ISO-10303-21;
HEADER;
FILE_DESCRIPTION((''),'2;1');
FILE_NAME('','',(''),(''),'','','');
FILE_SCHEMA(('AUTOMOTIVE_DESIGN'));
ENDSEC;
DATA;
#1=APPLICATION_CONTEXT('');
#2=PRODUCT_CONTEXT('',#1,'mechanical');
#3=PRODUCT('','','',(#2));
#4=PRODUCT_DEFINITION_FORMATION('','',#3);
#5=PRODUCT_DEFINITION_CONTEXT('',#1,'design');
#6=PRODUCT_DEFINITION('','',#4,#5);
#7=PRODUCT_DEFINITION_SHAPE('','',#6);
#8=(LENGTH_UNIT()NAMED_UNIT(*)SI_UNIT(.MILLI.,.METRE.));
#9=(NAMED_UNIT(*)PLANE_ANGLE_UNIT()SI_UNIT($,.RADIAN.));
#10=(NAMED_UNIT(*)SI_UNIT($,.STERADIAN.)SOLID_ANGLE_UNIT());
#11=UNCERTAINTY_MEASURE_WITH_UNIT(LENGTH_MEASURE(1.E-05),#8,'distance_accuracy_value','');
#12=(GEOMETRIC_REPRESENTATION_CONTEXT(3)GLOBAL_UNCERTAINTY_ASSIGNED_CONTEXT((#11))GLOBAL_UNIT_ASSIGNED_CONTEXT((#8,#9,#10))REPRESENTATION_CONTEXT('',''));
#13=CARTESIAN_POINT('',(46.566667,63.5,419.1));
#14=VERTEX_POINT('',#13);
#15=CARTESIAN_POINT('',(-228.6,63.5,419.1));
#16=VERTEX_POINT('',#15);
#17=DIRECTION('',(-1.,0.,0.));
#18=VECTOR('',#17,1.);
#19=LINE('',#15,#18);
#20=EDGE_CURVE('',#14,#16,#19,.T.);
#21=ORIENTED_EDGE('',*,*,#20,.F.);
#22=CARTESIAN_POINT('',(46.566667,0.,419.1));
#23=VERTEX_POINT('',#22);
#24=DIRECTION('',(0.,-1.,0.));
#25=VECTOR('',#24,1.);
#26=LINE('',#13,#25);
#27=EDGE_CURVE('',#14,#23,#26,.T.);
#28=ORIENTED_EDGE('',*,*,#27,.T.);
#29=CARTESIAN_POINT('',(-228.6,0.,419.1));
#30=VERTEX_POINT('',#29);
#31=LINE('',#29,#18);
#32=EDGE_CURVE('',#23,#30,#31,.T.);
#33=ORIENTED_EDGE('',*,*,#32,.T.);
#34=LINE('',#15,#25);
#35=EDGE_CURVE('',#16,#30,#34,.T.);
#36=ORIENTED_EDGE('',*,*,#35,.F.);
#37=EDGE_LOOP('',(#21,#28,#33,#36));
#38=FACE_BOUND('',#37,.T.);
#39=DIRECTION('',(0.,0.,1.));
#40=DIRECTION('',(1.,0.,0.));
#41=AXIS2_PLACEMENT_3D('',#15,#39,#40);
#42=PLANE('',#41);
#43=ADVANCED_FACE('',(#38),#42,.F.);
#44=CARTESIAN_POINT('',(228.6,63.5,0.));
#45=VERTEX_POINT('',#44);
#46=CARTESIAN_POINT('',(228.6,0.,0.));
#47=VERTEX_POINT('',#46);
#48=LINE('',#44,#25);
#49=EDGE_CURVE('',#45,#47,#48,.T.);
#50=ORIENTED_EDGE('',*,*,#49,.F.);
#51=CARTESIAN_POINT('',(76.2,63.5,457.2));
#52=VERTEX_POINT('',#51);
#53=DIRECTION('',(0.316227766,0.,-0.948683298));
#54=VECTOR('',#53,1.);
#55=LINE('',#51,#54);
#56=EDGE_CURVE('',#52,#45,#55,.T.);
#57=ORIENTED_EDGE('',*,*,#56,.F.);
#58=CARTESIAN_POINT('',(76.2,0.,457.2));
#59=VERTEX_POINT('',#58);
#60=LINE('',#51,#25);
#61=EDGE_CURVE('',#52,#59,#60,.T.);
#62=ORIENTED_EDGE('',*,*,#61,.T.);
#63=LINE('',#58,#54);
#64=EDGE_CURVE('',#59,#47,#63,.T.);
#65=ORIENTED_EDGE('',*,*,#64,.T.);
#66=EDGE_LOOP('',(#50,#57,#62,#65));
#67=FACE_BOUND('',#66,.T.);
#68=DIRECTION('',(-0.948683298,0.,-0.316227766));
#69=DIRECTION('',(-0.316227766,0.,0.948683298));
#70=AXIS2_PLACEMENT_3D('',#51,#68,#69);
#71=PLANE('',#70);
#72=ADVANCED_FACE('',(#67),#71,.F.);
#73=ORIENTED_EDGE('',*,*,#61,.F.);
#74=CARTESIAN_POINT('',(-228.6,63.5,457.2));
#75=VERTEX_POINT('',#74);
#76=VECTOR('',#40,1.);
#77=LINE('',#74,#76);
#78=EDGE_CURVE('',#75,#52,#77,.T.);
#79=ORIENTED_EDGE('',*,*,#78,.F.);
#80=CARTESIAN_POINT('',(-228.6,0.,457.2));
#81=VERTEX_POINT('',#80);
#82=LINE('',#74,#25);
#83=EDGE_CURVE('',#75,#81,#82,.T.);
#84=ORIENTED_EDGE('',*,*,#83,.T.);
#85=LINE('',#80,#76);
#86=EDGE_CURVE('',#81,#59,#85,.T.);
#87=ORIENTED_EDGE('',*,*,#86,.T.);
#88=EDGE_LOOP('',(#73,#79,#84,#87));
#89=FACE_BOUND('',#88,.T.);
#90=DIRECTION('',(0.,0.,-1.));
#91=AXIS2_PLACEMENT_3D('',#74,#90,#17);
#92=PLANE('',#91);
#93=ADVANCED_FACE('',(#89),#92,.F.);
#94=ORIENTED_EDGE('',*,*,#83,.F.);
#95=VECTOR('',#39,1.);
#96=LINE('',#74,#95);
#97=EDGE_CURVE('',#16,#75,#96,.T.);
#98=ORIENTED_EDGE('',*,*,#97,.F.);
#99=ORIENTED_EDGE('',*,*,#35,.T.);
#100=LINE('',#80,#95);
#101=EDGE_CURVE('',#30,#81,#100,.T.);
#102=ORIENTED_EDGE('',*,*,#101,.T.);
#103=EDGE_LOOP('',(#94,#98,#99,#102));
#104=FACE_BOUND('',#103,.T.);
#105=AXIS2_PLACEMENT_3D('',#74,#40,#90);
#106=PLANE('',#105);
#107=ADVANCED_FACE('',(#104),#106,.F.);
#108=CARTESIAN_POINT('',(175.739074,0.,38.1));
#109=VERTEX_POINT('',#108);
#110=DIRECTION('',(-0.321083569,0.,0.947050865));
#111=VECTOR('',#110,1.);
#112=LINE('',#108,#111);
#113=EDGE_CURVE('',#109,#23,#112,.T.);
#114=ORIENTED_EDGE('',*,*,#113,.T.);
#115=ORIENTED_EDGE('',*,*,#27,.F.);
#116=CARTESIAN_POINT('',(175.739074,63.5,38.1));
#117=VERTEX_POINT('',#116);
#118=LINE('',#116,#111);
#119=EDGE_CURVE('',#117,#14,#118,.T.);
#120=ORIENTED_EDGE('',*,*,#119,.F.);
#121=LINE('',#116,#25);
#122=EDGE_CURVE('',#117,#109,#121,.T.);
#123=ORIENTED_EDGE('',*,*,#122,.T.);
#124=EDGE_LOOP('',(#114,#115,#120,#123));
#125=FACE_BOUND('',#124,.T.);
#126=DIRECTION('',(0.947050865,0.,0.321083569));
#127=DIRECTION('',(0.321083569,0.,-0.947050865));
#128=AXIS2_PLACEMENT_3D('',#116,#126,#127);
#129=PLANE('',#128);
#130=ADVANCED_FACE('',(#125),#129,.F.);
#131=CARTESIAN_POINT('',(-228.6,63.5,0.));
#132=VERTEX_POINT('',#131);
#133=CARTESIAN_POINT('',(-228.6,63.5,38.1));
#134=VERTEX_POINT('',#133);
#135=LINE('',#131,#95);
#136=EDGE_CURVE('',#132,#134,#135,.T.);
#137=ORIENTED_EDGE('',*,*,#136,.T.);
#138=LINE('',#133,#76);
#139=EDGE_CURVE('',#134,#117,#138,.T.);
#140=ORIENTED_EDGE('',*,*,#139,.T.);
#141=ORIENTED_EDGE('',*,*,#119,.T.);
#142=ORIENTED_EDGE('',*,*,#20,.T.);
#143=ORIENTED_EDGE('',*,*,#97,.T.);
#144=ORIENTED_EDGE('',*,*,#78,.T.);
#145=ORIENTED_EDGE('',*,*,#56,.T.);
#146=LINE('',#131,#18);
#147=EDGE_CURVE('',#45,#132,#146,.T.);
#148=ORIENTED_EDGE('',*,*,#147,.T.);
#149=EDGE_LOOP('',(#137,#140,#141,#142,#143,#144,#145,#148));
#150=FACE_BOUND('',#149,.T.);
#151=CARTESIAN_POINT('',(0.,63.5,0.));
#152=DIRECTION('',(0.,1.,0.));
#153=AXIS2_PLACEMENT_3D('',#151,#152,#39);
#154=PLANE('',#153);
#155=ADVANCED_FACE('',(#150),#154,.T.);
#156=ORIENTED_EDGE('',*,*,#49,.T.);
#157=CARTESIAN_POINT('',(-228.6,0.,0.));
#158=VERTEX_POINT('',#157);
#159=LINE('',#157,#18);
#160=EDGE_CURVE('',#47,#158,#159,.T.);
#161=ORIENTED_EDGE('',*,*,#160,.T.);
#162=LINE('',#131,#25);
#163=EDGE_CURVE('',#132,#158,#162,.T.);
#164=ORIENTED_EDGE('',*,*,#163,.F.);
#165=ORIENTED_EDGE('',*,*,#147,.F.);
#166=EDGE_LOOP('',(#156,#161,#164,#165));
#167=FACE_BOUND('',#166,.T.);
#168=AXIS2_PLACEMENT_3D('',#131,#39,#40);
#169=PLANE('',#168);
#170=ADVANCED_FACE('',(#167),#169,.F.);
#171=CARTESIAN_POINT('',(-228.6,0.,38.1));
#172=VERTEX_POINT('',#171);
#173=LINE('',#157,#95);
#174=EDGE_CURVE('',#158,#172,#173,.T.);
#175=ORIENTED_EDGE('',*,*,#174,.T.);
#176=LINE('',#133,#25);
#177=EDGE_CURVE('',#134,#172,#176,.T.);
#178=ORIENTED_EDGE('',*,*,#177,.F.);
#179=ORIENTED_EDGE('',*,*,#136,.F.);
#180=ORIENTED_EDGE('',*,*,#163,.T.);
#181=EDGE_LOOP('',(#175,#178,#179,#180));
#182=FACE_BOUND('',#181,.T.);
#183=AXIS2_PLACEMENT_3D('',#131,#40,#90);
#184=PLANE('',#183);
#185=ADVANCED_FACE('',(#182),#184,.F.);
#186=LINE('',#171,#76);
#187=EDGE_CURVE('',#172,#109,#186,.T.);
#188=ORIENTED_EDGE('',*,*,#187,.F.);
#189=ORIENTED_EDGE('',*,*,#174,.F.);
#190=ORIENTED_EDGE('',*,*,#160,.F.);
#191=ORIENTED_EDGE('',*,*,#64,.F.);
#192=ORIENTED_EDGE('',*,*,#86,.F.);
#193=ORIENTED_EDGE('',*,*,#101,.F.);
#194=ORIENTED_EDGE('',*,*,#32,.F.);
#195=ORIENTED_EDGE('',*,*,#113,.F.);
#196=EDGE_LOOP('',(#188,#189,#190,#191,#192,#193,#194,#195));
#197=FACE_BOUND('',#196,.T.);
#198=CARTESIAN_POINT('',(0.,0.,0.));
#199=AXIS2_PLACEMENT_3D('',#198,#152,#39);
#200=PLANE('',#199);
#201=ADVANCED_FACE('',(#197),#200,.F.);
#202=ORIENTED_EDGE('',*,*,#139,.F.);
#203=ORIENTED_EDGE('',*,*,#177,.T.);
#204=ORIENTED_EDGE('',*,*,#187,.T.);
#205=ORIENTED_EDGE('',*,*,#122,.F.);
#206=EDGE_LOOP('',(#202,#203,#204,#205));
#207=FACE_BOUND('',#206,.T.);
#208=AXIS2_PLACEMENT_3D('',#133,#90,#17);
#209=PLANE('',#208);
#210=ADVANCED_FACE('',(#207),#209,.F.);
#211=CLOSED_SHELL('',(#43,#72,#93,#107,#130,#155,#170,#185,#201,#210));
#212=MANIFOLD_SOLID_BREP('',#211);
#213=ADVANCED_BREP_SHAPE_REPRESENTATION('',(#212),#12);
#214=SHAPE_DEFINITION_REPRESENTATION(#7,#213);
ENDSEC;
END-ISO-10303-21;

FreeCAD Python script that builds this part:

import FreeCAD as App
import Part
import Sketcher
from FreeCAD import Vector
Q = App.Units.Quantity


def add_polygon(sketch, points):
    """Adds a closed chain of lines whose ends are joined by coincident constraints."""
    first, n = sketch.GeometryCount, len(points)
    for a, b in zip(points, points[1:] + points[:1]):
        sketch.addGeometry(Part.LineSegment(App.Vector(*a, 0), App.Vector(*b, 0)), False)
    for i in range(n):
        sketch.addConstraint(Sketcher.Constraint("Coincident", first + i, 2, first + (i + 1) % n, 1))

doc = App.newDocument("Part")
params = doc.addObject("Spreadsheet::Sheet", "Params")
for row, (alias, value) in enumerate([
    ("sketch1_width", "18 in"),
    ("sketch1_width2", "12 in"),
    ("sketch1_height", "1.5 in"),
    ("pad1_length", "2.5 in"),
], start=1):
    params.set(f"A{row}", alias)
    params.set(f"B{row}", "=" + value)
    params.setAlias(f"B{row}", alias)

body = doc.addObject("PartDesign::Body", "Body")

# Sketch on XZ plane
sketch1 = doc.addObject("Sketcher::SketchObject", "Sketch")
body.addObject(sketch1)
sketch1.AttachmentSupport = (doc.XZ_Plane, [""])
sketch1.MapMode = "FlatFace"
add_polygon(sketch1, [(229, 0), (-229, 0), (-229, 38), (176, 38), (47, 419), (-229, 419), (-229, 457), (76, 457)])  # lines 0-7
sketch1.addConstraint([
    Sketcher.Constraint("Horizontal", 0),
    Sketcher.Constraint("Vertical", 1),
    Sketcher.Constraint("Horizontal", 2),
    Sketcher.Constraint("Horizontal", 4),
    Sketcher.Constraint("Vertical", 5),
    Sketcher.Constraint("Horizontal", 6),
    Sketcher.Constraint("Symmetric", 0, 2, 7, 2, -1, 1),
    Sketcher.Constraint("Vertical", 1, 2, 4, 2),
    Sketcher.Constraint("Equal", 1, 5),
    Sketcher.Constraint("DistanceX", 0, 2, 0, 1, Q("18 in")),
    Sketcher.Constraint("DistanceX", 6, 1, 6, 2, Q("12 in")),
    Sketcher.Constraint("DistanceY", 1, 1, 1, 2, Q("1.5 in")),
    Sketcher.Constraint("DistanceY", -1, 1, 5, 2, Q("18 in")),
    Sketcher.Constraint("DistanceX", 2, 1, 2, 2, Q("404.339074 mm")),
    Sketcher.Constraint("DistanceX", 4, 2, 4, 1, Q("275.166667 mm")),
])
sketch1.setExpression("Constraints[17]", "Params.sketch1_width")
sketch1.setExpression("Constraints[18]", "Params.sketch1_width2")
sketch1.setExpression("Constraints[19]", "Params.sketch1_height")
pad1 = doc.addObject("PartDesign::Pad", "Pad")
body.addObject(pad1)
pad1.Profile = sketch1
pad1.setExpression("Length", "Params.pad1_length")
pad1.Reversed = True

doc.recompute()
